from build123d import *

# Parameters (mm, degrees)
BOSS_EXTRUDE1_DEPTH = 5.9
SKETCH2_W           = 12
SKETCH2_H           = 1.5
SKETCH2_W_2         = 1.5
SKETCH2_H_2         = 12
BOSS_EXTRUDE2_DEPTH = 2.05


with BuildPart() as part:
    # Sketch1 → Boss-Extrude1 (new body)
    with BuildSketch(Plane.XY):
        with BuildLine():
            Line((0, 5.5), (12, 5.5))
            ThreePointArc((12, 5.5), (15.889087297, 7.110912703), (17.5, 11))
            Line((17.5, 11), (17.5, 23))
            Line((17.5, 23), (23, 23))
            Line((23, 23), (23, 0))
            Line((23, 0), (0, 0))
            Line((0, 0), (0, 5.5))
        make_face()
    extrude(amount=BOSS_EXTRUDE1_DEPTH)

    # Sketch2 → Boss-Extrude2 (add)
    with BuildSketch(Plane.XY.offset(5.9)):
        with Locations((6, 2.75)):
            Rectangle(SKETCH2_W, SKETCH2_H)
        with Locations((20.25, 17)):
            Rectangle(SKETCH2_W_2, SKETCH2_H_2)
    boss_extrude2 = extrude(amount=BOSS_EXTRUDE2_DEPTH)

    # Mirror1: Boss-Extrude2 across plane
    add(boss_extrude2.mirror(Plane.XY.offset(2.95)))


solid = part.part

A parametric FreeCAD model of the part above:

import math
import FreeCAD as App
import Part
import Sketcher

V = App.Vector
Q = App.Units.Quantity

doc = App.newDocument("Part")
body = doc.addObject("PartDesign::Body", "Body")

sketch1 = doc.addObject("Sketcher::SketchObject", "Sketch")
body.addObject(sketch1)
sketch1.AttachmentSupport = (doc.XY_Plane, [""])
sketch1.MapMode = "FlatFace"
sketch1.addGeometry([
    Part.LineSegment(V(12, 5.5, 0), V(0, 5.5, 0)),
    Part.LineSegment(V(0, 5.5, 0), V(0, 0, 0)),
    Part.LineSegment(V(0, 0, 0), V(23, 0, 0)),
    Part.LineSegment(V(23, 0, 0), V(23, 23, 0)),
    Part.LineSegment(V(23, 23, 0), V(17.5, 23, 0)),
    Part.LineSegment(V(17.5, 23, 0), V(17.5, 11, 0)),
    Part.ArcOfCircle(Part.Circle(V(12, 11, 0), V(0, 0, 1), 5.5), math.radians(-90), math.radians(0)),
], False)
sketch1.addConstraint([
    Sketcher.Constraint("Coincident", 0, 2, 1, 1),
    Sketcher.Constraint("Coincident", 1, 2, 2, 1),
    Sketcher.Constraint("Coincident", 2, 2, 3, 1),
    Sketcher.Constraint("Coincident", 3, 2, 4, 1),
    Sketcher.Constraint("Coincident", 4, 2, 5, 1),
    Sketcher.Constraint("Tangent", 5, 2, 6, 2),
    Sketcher.Constraint("Tangent", 6, 1, 0, 1),
    Sketcher.Constraint("Horizontal", 0),
    Sketcher.Constraint("Vertical", 1),
    Sketcher.Constraint("Horizontal", 2),
    Sketcher.Constraint("Vertical", 3),
    Sketcher.Constraint("Horizontal", 4),
    Sketcher.Constraint("Vertical", 5),
    Sketcher.Constraint("Coincident", 1, 2, -1, 1),
    Sketcher.Constraint("Equal", 4, 1),
    Sketcher.Constraint("Equal", 2, 3),
    Sketcher.Constraint("Radius", 6, Q("5.5 mm")),
    Sketcher.Constraint("DistanceX", 0, 2, 0, 1, Q("12 mm")),
    Sketcher.Constraint("DistanceX", 2, 1, 2, 2, Q("23 mm")),
])
pad1 = doc.addObject("PartDesign::Pad", "Pad")
body.addObject(pad1)
pad1.Profile = sketch1
pad1.Length = 5.9

sketch2 = doc.addObject("Sketcher::SketchObject", "Sketch001")
body.addObject(sketch2)
sketch2.AttachmentSupport = (doc.XY_Plane, [""])
sketch2.MapMode = "FlatFace"
sketch2.AttachmentOffset = App.Placement(V(0, 0, 5.9), App.Rotation())
sketch2.addGeometry([
    Part.LineSegment(V(0, 3.5, 0), V(0, 2, 0)),
    Part.LineSegment(V(0, 2, 0), V(12, 2, 0)),
    Part.LineSegment(V(12, 2, 0), V(12, 3.5, 0)),
    Part.LineSegment(V(12, 3.5, 0), V(0, 3.5, 0)),
    Part.LineSegment(V(19.5, 23, 0), V(19.5, 11, 0)),
    Part.LineSegment(V(19.5, 11, 0), V(21, 11, 0)),
    Part.LineSegment(V(21, 11, 0), V(21, 23, 0)),
    Part.LineSegment(V(21, 23, 0), V(19.5, 23, 0)),
], False)
sketch2.addConstraint([
    Sketcher.Constraint("Coincident", 0, 2, 1, 1),
    Sketcher.Constraint("Coincident", 1, 2, 2, 1),
    Sketcher.Constraint("Coincident", 2, 2, 3, 1),
    Sketcher.Constraint("Coincident", 3, 2, 0, 1),
    Sketcher.Constraint("Coincident", 4, 2, 5, 1),
    Sketcher.Constraint("Coincident", 5, 2, 6, 1),
    Sketcher.Constraint("Coincident", 6, 2, 7, 1),
    Sketcher.Constraint("Coincident", 7, 2, 4, 1),
    Sketcher.Constraint("Vertical", 0),
    Sketcher.Constraint("Horizontal", 1),
    Sketcher.Constraint("Vertical", 2),
    Sketcher.Constraint("Horizontal", 3),
    Sketcher.Constraint("Vertical", 4),
    Sketcher.Constraint("Horizontal", 5),
    Sketcher.Constraint("Vertical", 6),
    Sketcher.Constraint("Horizontal", 7),
    Sketcher.Constraint("PointOnObject", 0, 2, -2),
    Sketcher.Constraint("Equal", 7, 0),
    Sketcher.Constraint("Equal", 3, 4),
    Sketcher.Constraint("DistanceX", 1, 1, 1, 2, Q("12 mm")),
    Sketcher.Constraint("DistanceX", 5, 1, 5, 2, Q("1.5 mm")),
    Sketcher.Constraint("DistanceY", -1, 1, 0, 2, Q("2 mm")),
    Sketcher.Constraint("DistanceY", -1, 1, 4, 2, Q("11 mm")),
    Sketcher.Constraint("DistanceX", -1, 1, 5, 2, Q("21 mm")),
])
pad2 = doc.addObject("PartDesign::Pad", "Pad001")
body.addObject(pad2)
pad2.Profile = sketch2
pad2.Length = 2.05
doc.recompute()

datumplane = doc.addObject("PartDesign::Plane", "DatumPlane")
body.addObject(datumplane)
datumplane.AttachmentSupport = (doc.XY_Plane, [""])
datumplane.MapMode = "FlatFace"
datumplane.AttachmentOffset = App.Placement(V(0, 0, 2.95), App.Rotation())
mirrored = doc.addObject("PartDesign::Mirrored", "Mirrored")
body.addObject(mirrored)
mirrored.Originals = [pad2]
mirrored.MirrorPlane = (datumplane, [""])
body.Tip = mirrored

doc.recompute()
